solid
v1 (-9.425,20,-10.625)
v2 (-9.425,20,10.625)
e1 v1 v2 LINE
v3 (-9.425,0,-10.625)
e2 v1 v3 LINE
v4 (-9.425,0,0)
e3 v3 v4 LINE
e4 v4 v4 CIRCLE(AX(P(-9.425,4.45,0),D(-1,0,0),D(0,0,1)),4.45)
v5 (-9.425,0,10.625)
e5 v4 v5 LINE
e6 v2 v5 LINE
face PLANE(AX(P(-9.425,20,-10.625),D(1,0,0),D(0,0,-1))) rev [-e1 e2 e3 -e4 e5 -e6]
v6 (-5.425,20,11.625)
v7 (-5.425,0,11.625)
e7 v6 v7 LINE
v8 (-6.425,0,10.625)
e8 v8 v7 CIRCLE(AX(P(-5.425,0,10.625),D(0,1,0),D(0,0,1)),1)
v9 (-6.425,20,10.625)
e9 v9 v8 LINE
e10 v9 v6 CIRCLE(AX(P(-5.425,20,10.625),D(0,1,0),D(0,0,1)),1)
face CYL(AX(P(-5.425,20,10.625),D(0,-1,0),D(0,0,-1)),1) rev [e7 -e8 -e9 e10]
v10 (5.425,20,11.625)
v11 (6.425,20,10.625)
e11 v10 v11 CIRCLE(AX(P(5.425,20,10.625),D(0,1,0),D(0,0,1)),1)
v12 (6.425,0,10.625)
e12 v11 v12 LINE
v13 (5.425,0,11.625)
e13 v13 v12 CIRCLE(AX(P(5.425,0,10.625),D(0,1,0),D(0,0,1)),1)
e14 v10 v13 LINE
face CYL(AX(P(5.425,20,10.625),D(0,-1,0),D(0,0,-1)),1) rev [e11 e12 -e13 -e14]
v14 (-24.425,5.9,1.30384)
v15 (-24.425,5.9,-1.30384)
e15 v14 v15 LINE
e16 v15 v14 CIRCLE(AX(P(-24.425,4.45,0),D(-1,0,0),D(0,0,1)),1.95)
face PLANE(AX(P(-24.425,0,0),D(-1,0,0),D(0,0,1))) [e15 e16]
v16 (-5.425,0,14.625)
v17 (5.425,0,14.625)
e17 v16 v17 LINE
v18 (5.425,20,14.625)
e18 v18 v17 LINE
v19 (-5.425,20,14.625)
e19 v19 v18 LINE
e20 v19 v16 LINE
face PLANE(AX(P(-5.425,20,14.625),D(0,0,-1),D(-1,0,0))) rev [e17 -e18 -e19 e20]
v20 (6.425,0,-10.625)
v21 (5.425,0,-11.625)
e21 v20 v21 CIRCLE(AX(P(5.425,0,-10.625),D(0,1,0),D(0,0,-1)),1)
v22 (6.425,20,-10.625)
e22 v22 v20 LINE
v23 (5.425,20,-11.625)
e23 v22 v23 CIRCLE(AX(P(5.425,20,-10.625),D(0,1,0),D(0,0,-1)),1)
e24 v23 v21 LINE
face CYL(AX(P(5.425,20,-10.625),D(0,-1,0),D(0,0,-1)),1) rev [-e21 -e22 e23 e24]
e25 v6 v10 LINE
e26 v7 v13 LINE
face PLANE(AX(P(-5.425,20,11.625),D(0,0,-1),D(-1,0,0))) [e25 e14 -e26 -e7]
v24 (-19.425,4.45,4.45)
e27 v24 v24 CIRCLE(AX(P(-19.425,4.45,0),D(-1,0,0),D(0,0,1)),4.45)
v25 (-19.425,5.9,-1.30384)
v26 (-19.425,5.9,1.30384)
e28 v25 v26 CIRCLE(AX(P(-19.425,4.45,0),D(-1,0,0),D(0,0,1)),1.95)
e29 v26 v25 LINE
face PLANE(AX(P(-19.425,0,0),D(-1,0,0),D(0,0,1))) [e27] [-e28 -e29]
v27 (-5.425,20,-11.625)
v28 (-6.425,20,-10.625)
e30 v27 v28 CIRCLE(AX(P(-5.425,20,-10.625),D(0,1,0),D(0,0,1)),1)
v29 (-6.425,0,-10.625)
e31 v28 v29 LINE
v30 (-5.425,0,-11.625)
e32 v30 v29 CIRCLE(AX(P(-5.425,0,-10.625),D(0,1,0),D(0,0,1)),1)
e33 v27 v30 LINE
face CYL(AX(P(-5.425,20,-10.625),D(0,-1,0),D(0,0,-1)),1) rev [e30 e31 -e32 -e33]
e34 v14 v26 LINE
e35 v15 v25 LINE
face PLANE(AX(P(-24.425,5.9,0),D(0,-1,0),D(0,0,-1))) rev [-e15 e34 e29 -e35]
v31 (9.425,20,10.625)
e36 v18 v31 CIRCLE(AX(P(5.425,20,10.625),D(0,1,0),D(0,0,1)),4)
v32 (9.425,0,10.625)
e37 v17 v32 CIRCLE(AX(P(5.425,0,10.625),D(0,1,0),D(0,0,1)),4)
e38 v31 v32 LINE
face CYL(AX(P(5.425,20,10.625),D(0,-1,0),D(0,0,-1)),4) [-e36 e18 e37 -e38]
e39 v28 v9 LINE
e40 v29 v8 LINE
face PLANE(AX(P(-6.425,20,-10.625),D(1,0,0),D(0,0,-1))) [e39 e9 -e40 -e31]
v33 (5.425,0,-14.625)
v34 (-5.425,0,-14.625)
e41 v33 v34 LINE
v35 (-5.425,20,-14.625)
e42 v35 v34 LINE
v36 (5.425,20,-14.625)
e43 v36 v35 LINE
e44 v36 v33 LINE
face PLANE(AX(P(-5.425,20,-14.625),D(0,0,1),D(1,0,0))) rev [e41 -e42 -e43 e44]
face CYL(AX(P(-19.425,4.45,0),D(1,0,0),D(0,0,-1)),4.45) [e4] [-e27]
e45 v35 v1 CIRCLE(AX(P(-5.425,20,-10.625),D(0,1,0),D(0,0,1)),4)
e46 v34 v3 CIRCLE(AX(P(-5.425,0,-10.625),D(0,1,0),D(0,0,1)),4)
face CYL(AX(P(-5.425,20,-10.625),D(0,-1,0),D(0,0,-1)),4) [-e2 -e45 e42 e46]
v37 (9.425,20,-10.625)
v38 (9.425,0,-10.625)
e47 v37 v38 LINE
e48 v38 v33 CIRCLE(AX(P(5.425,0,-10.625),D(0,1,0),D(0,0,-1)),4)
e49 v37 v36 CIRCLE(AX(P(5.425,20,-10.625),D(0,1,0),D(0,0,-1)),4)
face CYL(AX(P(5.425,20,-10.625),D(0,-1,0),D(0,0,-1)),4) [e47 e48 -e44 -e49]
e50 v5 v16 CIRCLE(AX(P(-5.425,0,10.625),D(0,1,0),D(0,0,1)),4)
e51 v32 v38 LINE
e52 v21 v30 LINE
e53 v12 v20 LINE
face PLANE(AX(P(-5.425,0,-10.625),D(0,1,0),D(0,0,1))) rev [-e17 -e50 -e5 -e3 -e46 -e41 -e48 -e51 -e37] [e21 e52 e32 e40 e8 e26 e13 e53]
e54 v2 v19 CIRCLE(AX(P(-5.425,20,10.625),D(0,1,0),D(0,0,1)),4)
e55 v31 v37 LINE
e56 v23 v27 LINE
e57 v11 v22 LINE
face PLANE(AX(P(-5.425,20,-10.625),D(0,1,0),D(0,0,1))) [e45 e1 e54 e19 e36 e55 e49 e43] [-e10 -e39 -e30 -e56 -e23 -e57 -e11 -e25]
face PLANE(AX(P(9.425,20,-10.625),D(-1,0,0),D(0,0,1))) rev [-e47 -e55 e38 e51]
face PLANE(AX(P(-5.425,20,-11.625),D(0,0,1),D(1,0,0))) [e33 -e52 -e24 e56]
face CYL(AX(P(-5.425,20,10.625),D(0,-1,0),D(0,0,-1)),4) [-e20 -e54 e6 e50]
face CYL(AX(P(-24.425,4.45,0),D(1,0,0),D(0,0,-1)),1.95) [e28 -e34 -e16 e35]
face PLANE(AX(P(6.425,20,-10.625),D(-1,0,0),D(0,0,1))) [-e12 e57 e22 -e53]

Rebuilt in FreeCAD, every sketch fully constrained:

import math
import FreeCAD as App
import Part
import Sketcher

doc = App.newDocument("Part")
body = doc.addObject("PartDesign::Body", "Body")

# Sketch on XZ plane
sketch1 = body.newObject("Sketcher::SketchObject", "Sketch")
sketch1.AttachmentSupport = (doc.getObject("XZ_Plane"), [""])
sketch1.MapMode = "FlatFace"
sketch1.addGeometry(Part.LineSegment(App.Vector(5.4, -14.6, 0), App.Vector(-5.4, -14.6, 0)), False)
sketch1.addGeometry(Part.ArcOfCircle(Part.Circle(App.Vector(-5.4, -10.6, 0), App.Vector(0, 0, 1), 4), math.radians(180), math.radians(270)), False)
sketch1.addGeometry(Part.LineSegment(App.Vector(-9.4, -10.6, 0), App.Vector(-9.4, 10.6, 0)), False)
sketch1.addGeometry(Part.ArcOfCircle(Part.Circle(App.Vector(-5.4, 10.6, 0), App.Vector(0, 0, 1), 4), math.radians(90), math.radians(180)), False)
sketch1.addGeometry(Part.LineSegment(App.Vector(-5.4, 14.6, 0), App.Vector(5.4, 14.6, 0)), False)
sketch1.addGeometry(Part.ArcOfCircle(Part.Circle(App.Vector(5.4, 10.6, 0), App.Vector(0, 0, 1), 4), math.radians(0), math.radians(90)), False)
sketch1.addGeometry(Part.LineSegment(App.Vector(9.4, 10.6, 0), App.Vector(9.4, -10.6, 0)), False)
sketch1.addGeometry(Part.ArcOfCircle(Part.Circle(App.Vector(5.4, -10.6, 0), App.Vector(0, 0, 1), 4), math.radians(-90), math.radians(0)), False)
sketch1.addGeometry(Part.LineSegment(App.Vector(-5.4, -11.6, 0), App.Vector(5.4, -11.6, 0)), False)
sketch1.addGeometry(Part.ArcOfCircle(Part.Circle(App.Vector(5.4, -10.6, 0), App.Vector(0, 0, 1), 1), math.radians(-90), math.radians(0)), False)
sketch1.addGeometry(Part.LineSegment(App.Vector(6.4, -10.6, 0), App.Vector(6.4, 10.6, 0)), False)
sketch1.addGeometry(Part.ArcOfCircle(Part.Circle(App.Vector(5.4, 10.6, 0), App.Vector(0, 0, 1), 1), math.radians(0), math.radians(90)), False)
sketch1.addGeometry(Part.LineSegment(App.Vector(5.4, 11.6, 0), App.Vector(-5.4, 11.6, 0)), False)
sketch1.addGeometry(Part.ArcOfCircle(Part.Circle(App.Vector(-5.4, 10.6, 0), App.Vector(0, 0, 1), 1), math.radians(90), math.radians(180)), False)
sketch1.addGeometry(Part.LineSegment(App.Vector(-6.4, 10.6, 0), App.Vector(-6.4, -10.6, 0)), False)
sketch1.addGeometry(Part.ArcOfCircle(Part.Circle(App.Vector(-5.4, -10.6, 0), App.Vector(0, 0, 1), 1), math.radians(-180), math.radians(-90)), False)
sketch1.addConstraint(Sketcher.Constraint("Tangent", 0, 2, 1, 2))
sketch1.addConstraint(Sketcher.Constraint("Tangent", 1, 1, 2, 1))
sketch1.addConstraint(Sketcher.Constraint("Tangent", 2, 2, 3, 2))
sketch1.addConstraint(Sketcher.Constraint("Tangent", 3, 1, 4, 1))
sketch1.addConstraint(Sketcher.Constraint("Tangent", 4, 2, 5, 2))
sketch1.addConstraint(Sketcher.Constraint("Tangent", 5, 1, 6, 1))
sketch1.addConstraint(Sketcher.Constraint("Tangent", 6, 2, 7, 2))
sketch1.addConstraint(Sketcher.Constraint("Tangent", 7, 1, 0, 1))
sketch1.addConstraint(Sketcher.Constraint("Tangent", 8, 2, 9, 1))
sketch1.addConstraint(Sketcher.Constraint("Tangent", 9, 2, 10, 1))
sketch1.addConstraint(Sketcher.Constraint("Tangent", 10, 2, 11, 1))
sketch1.addConstraint(Sketcher.Constraint("Tangent", 11, 2, 12, 1))
sketch1.addConstraint(Sketcher.Constraint("Tangent", 12, 2, 13, 1))
sketch1.addConstraint(Sketcher.Constraint("Tangent", 13, 2, 14, 1))
sketch1.addConstraint(Sketcher.Constraint("Tangent", 14, 2, 15, 1))
sketch1.addConstraint(Sketcher.Constraint("Tangent", 15, 2, 8, 1))
sketch1.addConstraint(Sketcher.Constraint("Horizontal", 0))
sketch1.addConstraint(Sketcher.Constraint("Vertical", 2))
sketch1.addConstraint(Sketcher.Constraint("Horizontal", 4))
sketch1.addConstraint(Sketcher.Constraint("Vertical", 6))
sketch1.addConstraint(Sketcher.Constraint("Horizontal", 8))
sketch1.addConstraint(Sketcher.Constraint("Vertical", 10))
sketch1.addConstraint(Sketcher.Constraint("Horizontal", 12))
sketch1.addConstraint(Sketcher.Constraint("Vertical", 14))
sketch1.addConstraint(Sketcher.Constraint("Coincident", 9, 3, 7, 3))
sketch1.addConstraint(Sketcher.Constraint("Coincident", 11, 3, 5, 3))
sketch1.addConstraint(Sketcher.Constraint("Coincident", 13, 3, 3, 3))
sketch1.addConstraint(Sketcher.Constraint("Equal", 1, 3))
sketch1.addConstraint(Sketcher.Constraint("Equal", 3, 5))
sketch1.addConstraint(Sketcher.Constraint("Equal", 5, 7))
sketch1.addConstraint(Sketcher.Constraint("Equal", 13, 15))
sketch1.addConstraint(Sketcher.Constraint("Symmetric", 1, 3, 5, 3, -1, 1))
sketch1.addConstraint(Sketcher.Constraint("Radius", 1, 4.0))
sketch1.addConstraint(Sketcher.Constraint("Radius", 9, 1.0))
sketch1.addConstraint(Sketcher.Constraint("DistanceX", 0, 2, 0, 1, 10.85))
sketch1.addConstraint(Sketcher.Constraint("DistanceY", 2, 1, 2, 2, 21.25))
pad1 = body.newObject("PartDesign::Pad", "Pad")
pad1.Profile = sketch1
pad1.Length = 20
pad1.Reversed = True

# Sketch on YZ plane
sketch2 = body.newObject("Sketcher::SketchObject", "Sketch001")
sketch2.AttachmentSupport = (doc.getObject("YZ_Plane"), [""])
sketch2.MapMode = "FlatFace"
sketch2.AttachmentOffset = App.Placement(App.Vector(0, 0, -9.425), App.Rotation())
sketch2.addGeometry(Part.Circle(App.Vector(4.5, 0, 0), App.Vector(0, 0, 1), 4.5), False)
sketch2.addGeometry(Part.ArcOfCircle(Part.Circle(App.Vector(4.5, 0, 0), App.Vector(0, 0, 1), 1.9), math.radians(42), math.radians(318)), False)
sketch2.addGeometry(Part.LineSegment(App.Vector(5.9, -1.3, 0), App.Vector(5.9, 1.3, 0)), False)
sketch2.addConstraint(Sketcher.Constraint("Coincident", 1, 1, 2, 2))
sketch2.addConstraint(Sketcher.Constraint("Coincident", 2, 1, 1, 2))
sketch2.addConstraint(Sketcher.Constraint("Vertical", 2))
sketch2.addConstraint(Sketcher.Constraint("Coincident", 1, 3, 0, 3))
sketch2.addConstraint(Sketcher.Constraint("PointOnObject", 0, 3, -1))
sketch2.addConstraint(Sketcher.Constraint("Diameter", 0, 8.9))
sketch2.addConstraint(Sketcher.Constraint("Radius", 1, 1.95))
sketch2.addConstraint(Sketcher.Constraint("DistanceX", -1, 1, 1, 1, 5.9))
sketch2.addConstraint(Sketcher.Constraint("DistanceX", -1, 1, 0, 3, 4.45))
pad2 = body.newObject("PartDesign::Pad", "Pad001")
pad2.Profile = sketch2
pad2.Length = 10
pad2.Reversed = True

# Sketch on YZ plane
sketch3 = body.newObject("Sketcher::SketchObject", "Sketch002")
sketch3.AttachmentSupport = (doc.getObject("YZ_Plane"), [""])
sketch3.MapMode = "FlatFace"
sketch3.AttachmentOffset = App.Placement(App.Vector(0, 0, -9.425), App.Rotation())
sketch3.addGeometry(Part.ArcOfCircle(Part.Circle(App.Vector(4.4, 0, 0), App.Vector(0, 0, 1), 2), math.radians(42), math.radians(90)), False)
sketch3.addGeometry(Part.LineSegment(App.Vector(5.9, 1.3, 0), App.Vector(5.9, -1.3, 0)), False)
sketch3.addGeometry(Part.ArcOfCircle(Part.Circle(App.Vector(4.5, 0, 0), App.Vector(0, 0, 1), 1.9), math.radians(90), math.radians(318)), False)
sketch3.addConstraint(Sketcher.Constraint("Coincident", 0, 1, 1, 1))
sketch3.addConstraint(Sketcher.Constraint("Coincident", 1, 2, 2, 2))
sketch3.addConstraint(Sketcher.Constraint("Tangent", 2, 1, 0, 2))
sketch3.addConstraint(Sketcher.Constraint("Vertical", 1))
sketch3.addConstraint(Sketcher.Constraint("Equal", 0, 2))
sketch3.addConstraint(Sketcher.Constraint("PointOnObject", 0, 3, -1))
sketch3.addConstraint(Sketcher.Constraint("Vertical", 0, 3, 2, 1))
sketch3.addConstraint(Sketcher.Constraint("Radius", 0, 1.95))
sketch3.addConstraint(Sketcher.Constraint("DistanceX", -1, 1, 0, 1, 5.9))
sketch3.addConstraint(Sketcher.Constraint("DistanceX", -1, 1, 0, 3, 4.45))
pad3 = body.newObject("PartDesign::Pad", "Pad002")
pad3.Profile = sketch3
pad3.Length = 15
pad3.Reversed = True

doc.recompute()
